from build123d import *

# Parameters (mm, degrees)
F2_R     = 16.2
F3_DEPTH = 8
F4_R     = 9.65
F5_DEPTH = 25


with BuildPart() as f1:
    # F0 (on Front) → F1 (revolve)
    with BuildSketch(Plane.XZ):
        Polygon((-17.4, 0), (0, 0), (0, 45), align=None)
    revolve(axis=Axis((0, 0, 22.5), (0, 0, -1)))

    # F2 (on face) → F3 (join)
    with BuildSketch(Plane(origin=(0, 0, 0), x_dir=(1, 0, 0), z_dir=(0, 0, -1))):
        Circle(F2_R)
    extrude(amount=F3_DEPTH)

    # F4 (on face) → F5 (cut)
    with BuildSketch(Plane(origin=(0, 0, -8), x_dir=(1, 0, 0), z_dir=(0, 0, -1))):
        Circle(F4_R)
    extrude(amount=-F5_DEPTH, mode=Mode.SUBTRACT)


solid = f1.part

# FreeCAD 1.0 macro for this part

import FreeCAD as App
import Part
import Sketcher
from FreeCAD import Vector
Q = App.Units.Quantity


def add_polygon(sketch, points):
    """Adds a closed chain of lines whose ends are joined by coincident constraints."""
    first, n = sketch.GeometryCount, len(points)
    for a, b in zip(points, points[1:] + points[:1]):
        sketch.addGeometry(Part.LineSegment(App.Vector(*a, 0), App.Vector(*b, 0)), False)
    for i in range(n):
        sketch.addConstraint(Sketcher.Constraint("Coincident", first + i, 2, first + (i + 1) % n, 1))

doc = App.newDocument("Part")
body = doc.addObject("PartDesign::Body", "Body")

sketch1 = body.newObject("Sketcher::SketchObject", "Sketch")
sketch1.AttachmentSupport = (doc.getObject("XZ_Plane"), [""])
sketch1.MapMode = "FlatFace"
add_polygon(sketch1, [(-17.4, 0), (0, 0), (0, 45)])
sketch1.addConstraint([
    Sketcher.Constraint("Horizontal", 0),
    Sketcher.Constraint("Vertical", 1),
    Sketcher.Constraint("Coincident", 0, 2, -1, 1),
    Sketcher.Constraint("DistanceY", 1, 1, 1, 2, Q("45 mm")),
    Sketcher.Constraint("DistanceX", 0, 1, 0, 2, Q("17.4 mm")),
])
revolution = body.newObject("PartDesign::Revolution", "Revolution")
revolution.Profile = sketch1
revolution.ReferenceAxis = (sketch1, ["V_Axis"])
revolution.Angle = 360

sketch2 = body.newObject("Sketcher::SketchObject", "Sketch001")
sketch2.AttachmentSupport = (doc.getObject("XY_Plane"), [""])
sketch2.MapMode = "FlatFace"
sketch2.addGeometry(Part.Circle(Vector(0, 0, 0), Vector(0, 0, 1), 16.2), False)
sketch2.addConstraint([
    Sketcher.Constraint("Coincident", 0, 3, -1, 1),
    Sketcher.Constraint("Diameter", 0, Q("32.4 mm")),
])
pad1 = body.newObject("PartDesign::Pad", "Pad")
pad1.Profile = sketch2
pad1.Length = 8
pad1.Reversed = True

sketch3 = body.newObject("Sketcher::SketchObject", "Sketch002")
sketch3.AttachmentSupport = (doc.getObject("XY_Plane"), [""])
sketch3.MapMode = "FlatFace"
sketch3.AttachmentOffset = App.Placement(Vector(0, 0, -8), App.Rotation())
sketch3.addGeometry(Part.Circle(Vector(0, 0, 0), Vector(0, 0, 1), 9.65), False)
sketch3.addConstraint([
    Sketcher.Constraint("Coincident", 0, 3, -1, 1),
    Sketcher.Constraint("Diameter", 0, Q("19.3 mm")),
])
pocket1 = body.newObject("PartDesign::Pocket", "Pocket")
pocket1.Profile = sketch3
pocket1.Length = 25
pocket1.Reversed = True

doc.recompute()
